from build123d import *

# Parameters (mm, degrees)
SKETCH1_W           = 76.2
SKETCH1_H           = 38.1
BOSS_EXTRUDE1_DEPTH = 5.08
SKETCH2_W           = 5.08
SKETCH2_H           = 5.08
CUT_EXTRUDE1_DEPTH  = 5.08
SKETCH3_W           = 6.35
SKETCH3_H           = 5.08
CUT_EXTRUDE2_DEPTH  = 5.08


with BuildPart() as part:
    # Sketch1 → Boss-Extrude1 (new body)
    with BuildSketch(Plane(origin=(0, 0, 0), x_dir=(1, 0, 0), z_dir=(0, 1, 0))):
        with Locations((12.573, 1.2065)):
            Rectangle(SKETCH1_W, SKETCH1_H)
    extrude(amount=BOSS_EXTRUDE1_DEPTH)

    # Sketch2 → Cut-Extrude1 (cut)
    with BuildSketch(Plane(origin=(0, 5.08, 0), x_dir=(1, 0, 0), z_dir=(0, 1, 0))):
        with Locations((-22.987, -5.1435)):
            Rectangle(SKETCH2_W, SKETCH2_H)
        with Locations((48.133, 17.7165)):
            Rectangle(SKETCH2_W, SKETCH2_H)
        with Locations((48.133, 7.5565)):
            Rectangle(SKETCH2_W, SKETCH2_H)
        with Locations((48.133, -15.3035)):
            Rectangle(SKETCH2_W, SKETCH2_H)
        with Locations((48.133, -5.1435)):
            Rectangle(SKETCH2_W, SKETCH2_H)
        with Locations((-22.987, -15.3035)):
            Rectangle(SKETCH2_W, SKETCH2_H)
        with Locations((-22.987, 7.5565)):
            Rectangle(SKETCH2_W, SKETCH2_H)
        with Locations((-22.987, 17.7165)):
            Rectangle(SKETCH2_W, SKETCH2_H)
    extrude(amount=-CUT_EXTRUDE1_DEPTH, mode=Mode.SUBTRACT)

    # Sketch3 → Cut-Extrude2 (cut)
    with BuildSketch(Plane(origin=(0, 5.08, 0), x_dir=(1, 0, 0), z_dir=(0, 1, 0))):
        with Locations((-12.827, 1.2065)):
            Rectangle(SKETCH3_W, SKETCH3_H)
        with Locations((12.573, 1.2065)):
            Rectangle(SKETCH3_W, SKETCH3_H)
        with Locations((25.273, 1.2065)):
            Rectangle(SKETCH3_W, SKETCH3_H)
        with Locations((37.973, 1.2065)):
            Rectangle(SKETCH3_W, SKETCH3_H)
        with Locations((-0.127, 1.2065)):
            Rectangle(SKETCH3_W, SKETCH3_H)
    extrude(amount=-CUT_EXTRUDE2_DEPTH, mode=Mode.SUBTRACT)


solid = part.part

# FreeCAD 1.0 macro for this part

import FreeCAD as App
import Part
import Sketcher
Q = App.Units.Quantity

doc = App.newDocument("Part")
body = doc.addObject("PartDesign::Body", "Body")

# Sketch on XZ plane
sketch1 = body.newObject("Sketcher::SketchObject", "Sketch")
sketch1.AttachmentSupport = (doc.getObject("XZ_Plane"), [""])
sketch1.MapMode = "FlatFace"
sketch1.addGeometry([
    Part.LineSegment(App.Vector(-25.527, -20.2565, 0), App.Vector(-25.527, 17.8435, 0)),
    Part.LineSegment(App.Vector(-25.527, 17.8435, 0), App.Vector(50.673, 17.8435, 0)),
    Part.LineSegment(App.Vector(50.673, 17.8435, 0), App.Vector(50.673, -20.2565, 0)),
    Part.LineSegment(App.Vector(50.673, -20.2565, 0), App.Vector(-25.527, -20.2565, 0)),
], False)
sketch1.addConstraint([
    Sketcher.Constraint("Coincident", 0, 2, 1, 1),
    Sketcher.Constraint("Coincident", 1, 2, 2, 1),
    Sketcher.Constraint("Coincident", 2, 2, 3, 1),
    Sketcher.Constraint("Coincident", 3, 2, 0, 1),
    Sketcher.Constraint("Vertical", 0),
    Sketcher.Constraint("Horizontal", 1),
    Sketcher.Constraint("Vertical", 2),
    Sketcher.Constraint("Horizontal", 3),
    Sketcher.Constraint("DistanceX", 1, 1, 1, 2, Q("3 in")),
    Sketcher.Constraint("DistanceY", 0, 1, 0, 2, Q("1.5 in")),
    Sketcher.Constraint("DistanceX", 0, 2, -1, 1, Q("1.005 in")),
    Sketcher.Constraint("DistanceY", -1, 1, 0, 2, Q("0.7025 in")),
])
pad1 = body.newObject("PartDesign::Pad", "Pad")
pad1.Profile = sketch1
pad1.Length = Q("0.2 in")
pad1.Reversed = True

# Sketch on XZ plane
sketch2 = body.newObject("Sketcher::SketchObject", "Sketch001")
sketch2.AttachmentSupport = (doc.getObject("XZ_Plane"), [""])
sketch2.MapMode = "FlatFace"
sketch2.AttachmentOffset = App.Placement(App.Vector(0, 0, -0.2 * 25.4), App.Rotation())
sketch2.addGeometry([
    Part.LineSegment(App.Vector(-25.527, 2.6035, 0), App.Vector(-25.527, 7.6835, 0)),  # 0
    Part.LineSegment(App.Vector(-25.527, 7.6835, 0), App.Vector(-20.447, 7.6835, 0)),  # 1
    Part.LineSegment(App.Vector(-20.447, 7.6835, 0), App.Vector(-20.447, 2.6035, 0)),  # 2
    Part.LineSegment(App.Vector(-20.447, 2.6035, 0), App.Vector(-25.527, 2.6035, 0)),  # 3
    Part.LineSegment(App.Vector(45.593, -20.2565, 0), App.Vector(45.593, -15.1765, 0)),  # 4
    Part.LineSegment(App.Vector(45.593, -15.1765, 0), App.Vector(50.673, -15.1765, 0)),  # 5
    Part.LineSegment(App.Vector(50.673, -15.1765, 0), App.Vector(50.673, -20.2565, 0)),  # 6
    Part.LineSegment(App.Vector(50.673, -20.2565, 0), App.Vector(45.593, -20.2565, 0)),  # 7
    Part.LineSegment(App.Vector(45.593, -10.0965, 0), App.Vector(45.593, -5.0165, 0)),  # 8
    Part.LineSegment(App.Vector(45.593, -5.0165, 0), App.Vector(50.673, -5.0165, 0)),  # 9
    Part.LineSegment(App.Vector(50.673, -5.0165, 0), App.Vector(50.673, -10.0965, 0)),  # 10
    Part.LineSegment(App.Vector(50.673, -10.0965, 0), App.Vector(45.593, -10.0965, 0)),  # 11
    Part.LineSegment(App.Vector(45.593, 12.7635, 0), App.Vector(45.593, 17.8435, 0)),  # 12
    Part.LineSegment(App.Vector(45.593, 17.8435, 0), App.Vector(50.673, 17.8435, 0)),  # 13
    Part.LineSegment(App.Vector(50.673, 17.8435, 0), App.Vector(50.673, 12.7635, 0)),  # 14
    Part.LineSegment(App.Vector(50.673, 12.7635, 0), App.Vector(45.593, 12.7635, 0)),  # 15
    Part.LineSegment(App.Vector(45.593, 2.6035, 0), App.Vector(45.593, 7.6835, 0)),  # 16
    Part.LineSegment(App.Vector(45.593, 7.6835, 0), App.Vector(50.673, 7.6835, 0)),  # 17
    Part.LineSegment(App.Vector(50.673, 7.6835, 0), App.Vector(50.673, 2.6035, 0)),  # 18
    Part.LineSegment(App.Vector(50.673, 2.6035, 0), App.Vector(45.593, 2.6035, 0)),  # 19
    Part.LineSegment(App.Vector(-25.527, 12.7635, 0), App.Vector(-25.527, 17.8435, 0)),  # 20
    Part.LineSegment(App.Vector(-25.527, 17.8435, 0), App.Vector(-20.447, 17.8435, 0)),  # 21
    Part.LineSegment(App.Vector(-20.447, 17.8435, 0), App.Vector(-20.447, 12.7635, 0)),  # 22
    Part.LineSegment(App.Vector(-20.447, 12.7635, 0), App.Vector(-25.527, 12.7635, 0)),  # 23
    Part.LineSegment(App.Vector(-25.527, -10.0965, 0), App.Vector(-25.527, -5.0165, 0)),  # 24
    Part.LineSegment(App.Vector(-25.527, -5.0165, 0), App.Vector(-20.447, -5.0165, 0)),  # 25
    Part.LineSegment(App.Vector(-20.447, -5.0165, 0), App.Vector(-20.447, -10.0965, 0)),  # 26
    Part.LineSegment(App.Vector(-20.447, -10.0965, 0), App.Vector(-25.527, -10.0965, 0)),  # 27
    Part.LineSegment(App.Vector(-25.527, -20.2565, 0), App.Vector(-25.527, -15.1765, 0)),  # 28
    Part.LineSegment(App.Vector(-25.527, -15.1765, 0), App.Vector(-20.447, -15.1765, 0)),  # 29
    Part.LineSegment(App.Vector(-20.447, -15.1765, 0), App.Vector(-20.447, -20.2565, 0)),  # 30
    Part.LineSegment(App.Vector(-20.447, -20.2565, 0), App.Vector(-25.527, -20.2565, 0)),  # 31
], False)
sketch2.addConstraint([
    Sketcher.Constraint("Coincident", 0, 2, 1, 1),
    Sketcher.Constraint("Coincident", 1, 2, 2, 1),
    Sketcher.Constraint("Coincident", 2, 2, 3, 1),
    Sketcher.Constraint("Coincident", 3, 2, 0, 1),
    Sketcher.Constraint("Coincident", 4, 2, 5, 1),
    Sketcher.Constraint("Coincident", 5, 2, 6, 1),
    Sketcher.Constraint("Coincident", 6, 2, 7, 1),
    Sketcher.Constraint("Coincident", 7, 2, 4, 1),
    Sketcher.Constraint("Coincident", 8, 2, 9, 1),
    Sketcher.Constraint("Coincident", 9, 2, 10, 1),
    Sketcher.Constraint("Coincident", 10, 2, 11, 1),
    Sketcher.Constraint("Coincident", 11, 2, 8, 1),
    Sketcher.Constraint("Coincident", 12, 2, 13, 1),
    Sketcher.Constraint("Coincident", 13, 2, 14, 1),
    Sketcher.Constraint("Coincident", 14, 2, 15, 1),
    Sketcher.Constraint("Coincident", 15, 2, 12, 1),
    Sketcher.Constraint("Coincident", 16, 2, 17, 1),
    Sketcher.Constraint("Coincident", 17, 2, 18, 1),
    Sketcher.Constraint("Coincident", 18, 2, 19, 1),
    Sketcher.Constraint("Coincident", 19, 2, 16, 1),
    Sketcher.Constraint("Coincident", 20, 2, 21, 1),
    Sketcher.Constraint("Coincident", 21, 2, 22, 1),
    Sketcher.Constraint("Coincident", 22, 2, 23, 1),
    Sketcher.Constraint("Coincident", 23, 2, 20, 1),
    Sketcher.Constraint("Coincident", 24, 2, 25, 1),
    Sketcher.Constraint("Coincident", 25, 2, 26, 1),
    Sketcher.Constraint("Coincident", 26, 2, 27, 1),
    Sketcher.Constraint("Coincident", 27, 2, 24, 1),
    Sketcher.Constraint("Coincident", 28, 2, 29, 1),
    Sketcher.Constraint("Coincident", 29, 2, 30, 1),
    Sketcher.Constraint("Coincident", 30, 2, 31, 1),
    Sketcher.Constraint("Coincident", 31, 2, 28, 1),
    Sketcher.Constraint("Vertical", 0),
    Sketcher.Constraint("Horizontal", 1),
    Sketcher.Constraint("Vertical", 2),
    Sketcher.Constraint("Horizontal", 3),
    Sketcher.Constraint("Vertical", 4),
    Sketcher.Constraint("Horizontal", 5),
    Sketcher.Constraint("Vertical", 6),
    Sketcher.Constraint("Horizontal", 7),
    Sketcher.Constraint("Vertical", 8),
    Sketcher.Constraint("Horizontal", 9),
    Sketcher.Constraint("Vertical", 10),
    Sketcher.Constraint("Horizontal", 11),
    Sketcher.Constraint("Vertical", 12),
    Sketcher.Constraint("Horizontal", 13),
    Sketcher.Constraint("Vertical", 14),
    Sketcher.Constraint("Horizontal", 15),
    Sketcher.Constraint("Vertical", 16),
    Sketcher.Constraint("Horizontal", 17),
    Sketcher.Constraint("Vertical", 18),
    Sketcher.Constraint("Horizontal", 19),
    Sketcher.Constraint("Vertical", 20),
    Sketcher.Constraint("Horizontal", 21),
    Sketcher.Constraint("Vertical", 22),
    Sketcher.Constraint("Horizontal", 23),
    Sketcher.Constraint("Vertical", 24),
    Sketcher.Constraint("Horizontal", 25),
    Sketcher.Constraint("Vertical", 26),
    Sketcher.Constraint("Horizontal", 27),
    Sketcher.Constraint("Vertical", 28),
    Sketcher.Constraint("Horizontal", 29),
    Sketcher.Constraint("Vertical", 30),
    Sketcher.Constraint("Horizontal", 31),
    Sketcher.Constraint("Horizontal", 1, 2, 16, 2),
    Sketcher.Constraint("Horizontal", 3, 2, 18, 2),
    Sketcher.Constraint("Horizontal", 13, 2, 20, 2),
    Sketcher.Constraint("Horizontal", 15, 2, 22, 2),
    Sketcher.Constraint("Horizontal", 9, 2, 24, 2),
    Sketcher.Constraint("Horizontal", 11, 2, 26, 2),
    Sketcher.Constraint("Horizontal", 5, 2, 28, 2),
    Sketcher.Constraint("Horizontal", 7, 2, 30, 2),
    Sketcher.Constraint("Vertical", 7, 2, 8, 2),
    Sketcher.Constraint("Vertical", 6, 2, 9, 2),
    Sketcher.Constraint("Vertical", 11, 2, 12, 2),
    Sketcher.Constraint("Vertical", 10, 2, 13, 2),
    Sketcher.Constraint("Vertical", 15, 2, 16, 2),
    Sketcher.Constraint("Vertical", 14, 2, 17, 2),
    Sketcher.Constraint("Vertical", 3, 2, 20, 2),
    Sketcher.Constraint("Vertical", 2, 2, 21, 2),
    Sketcher.Constraint("Vertical", 23, 2, 24, 2),
    Sketcher.Constraint("Vertical", 22, 2, 25, 2),
    Sketcher.Constraint("Vertical", 27, 2, 28, 2),
    Sketcher.Constraint("Vertical", 26, 2, 29, 2),
    Sketcher.Constraint("Equal", 3, 5),
    Sketcher.Constraint("Equal", 31, 0),
    Sketcher.Constraint("Equal", 2, 4),
    Sketcher.Constraint("Equal", 6, 8),
    Sketcher.Constraint("Equal", 10, 12),
    Sketcher.Constraint("DistanceX", 1, 1, 1, 2, Q("0.2 in")),
    Sketcher.Constraint("DistanceX", 3, 2, 5, 2, Q("3 in")),
    Sketcher.Constraint("DistanceY", 4, 2, 2, 2, Q("0.7 in")),
    Sketcher.Constraint("DistanceY", 4, 2, 8, 2, Q("0.4 in")),
    Sketcher.Constraint("DistanceY", 8, 2, 12, 2, Q("0.9 in")),
    Sketcher.Constraint("DistanceX", 0, 2, -1, 1, Q("1.005 in")),
    Sketcher.Constraint("DistanceY", -1, 1, 0, 2, Q("0.3025 in")),
])
pocket1 = body.newObject("PartDesign::Pocket", "Pocket")
pocket1.Profile = sketch2
pocket1.Length = Q("0.2 in")
pocket1.Reversed = True

# Sketch on XZ plane
sketch3 = body.newObject("Sketcher::SketchObject", "Sketch002")
sketch3.AttachmentSupport = (doc.getObject("XZ_Plane"), [""])
sketch3.MapMode = "FlatFace"
sketch3.AttachmentOffset = App.Placement(App.Vector(0, 0, -0.2 * 25.4), App.Rotation())
sketch3.addGeometry([
    Part.LineSegment(App.Vector(-16.002, -3.7465, 0), App.Vector(-16.002, 1.3335, 0)),  # 0
    Part.LineSegment(App.Vector(-16.002, 1.3335, 0), App.Vector(-9.652, 1.3335, 0)),  # 1
    Part.LineSegment(App.Vector(-9.652, 1.3335, 0), App.Vector(-9.652, -3.7465, 0)),  # 2
    Part.LineSegment(App.Vector(-9.652, -3.7465, 0), App.Vector(-16.002, -3.7465, 0)),  # 3
    Part.LineSegment(App.Vector(9.398, -3.7465, 0), App.Vector(9.398, 1.3335, 0)),  # 4
    Part.LineSegment(App.Vector(9.398, 1.3335, 0), App.Vector(15.748, 1.3335, 0)),  # 5
    Part.LineSegment(App.Vector(15.748, 1.3335, 0), App.Vector(15.748, -3.7465, 0)),  # 6
    Part.LineSegment(App.Vector(15.748, -3.7465, 0), App.Vector(9.398, -3.7465, 0)),  # 7
    Part.LineSegment(App.Vector(22.098, -3.7465, 0), App.Vector(22.098, 1.3335, 0)),  # 8
    Part.LineSegment(App.Vector(22.098, 1.3335, 0), App.Vector(28.448, 1.3335, 0)),  # 9
    Part.LineSegment(App.Vector(28.448, 1.3335, 0), App.Vector(28.448, -3.7465, 0)),  # 10
    Part.LineSegment(App.Vector(28.448, -3.7465, 0), App.Vector(22.098, -3.7465, 0)),  # 11
    Part.LineSegment(App.Vector(34.798, -3.7465, 0), App.Vector(34.798, 1.3335, 0)),  # 12
    Part.LineSegment(App.Vector(34.798, 1.3335, 0), App.Vector(41.148, 1.3335, 0)),  # 13
    Part.LineSegment(App.Vector(41.148, 1.3335, 0), App.Vector(41.148, -3.7465, 0)),  # 14
    Part.LineSegment(App.Vector(41.148, -3.7465, 0), App.Vector(34.798, -3.7465, 0)),  # 15
    Part.LineSegment(App.Vector(-3.302, -3.7465, 0), App.Vector(-3.302, 1.3335, 0)),  # 16
    Part.LineSegment(App.Vector(-3.302, 1.3335, 0), App.Vector(3.048, 1.3335, 0)),  # 17
    Part.LineSegment(App.Vector(3.048, 1.3335, 0), App.Vector(3.048, -3.7465, 0)),  # 18
    Part.LineSegment(App.Vector(3.048, -3.7465, 0), App.Vector(-3.302, -3.7465, 0)),  # 19
], False)
sketch3.addConstraint([
    Sketcher.Constraint("Coincident", 0, 2, 1, 1),
    Sketcher.Constraint("Coincident", 1, 2, 2, 1),
    Sketcher.Constraint("Coincident", 2, 2, 3, 1),
    Sketcher.Constraint("Coincident", 3, 2, 0, 1),
    Sketcher.Constraint("Coincident", 4, 2, 5, 1),
    Sketcher.Constraint("Coincident", 5, 2, 6, 1),
    Sketcher.Constraint("Coincident", 6, 2, 7, 1),
    Sketcher.Constraint("Coincident", 7, 2, 4, 1),
    Sketcher.Constraint("Coincident", 8, 2, 9, 1),
    Sketcher.Constraint("Coincident", 9, 2, 10, 1),
    Sketcher.Constraint("Coincident", 10, 2, 11, 1),
    Sketcher.Constraint("Coincident", 11, 2, 8, 1),
    Sketcher.Constraint("Coincident", 12, 2, 13, 1),
    Sketcher.Constraint("Coincident", 13, 2, 14, 1),
    Sketcher.Constraint("Coincident", 14, 2, 15, 1),
    Sketcher.Constraint("Coincident", 15, 2, 12, 1),
    Sketcher.Constraint("Coincident", 16, 2, 17, 1),
    Sketcher.Constraint("Coincident", 17, 2, 18, 1),
    Sketcher.Constraint("Coincident", 18, 2, 19, 1),
    Sketcher.Constraint("Coincident", 19, 2, 16, 1),
    Sketcher.Constraint("Vertical", 0),
    Sketcher.Constraint("Horizontal", 1),
    Sketcher.Constraint("Vertical", 2),
    Sketcher.Constraint("Horizontal", 3),
    Sketcher.Constraint("Vertical", 4),
    Sketcher.Constraint("Horizontal", 5),
    Sketcher.Constraint("Vertical", 6),
    Sketcher.Constraint("Horizontal", 7),
    Sketcher.Constraint("Vertical", 8),
    Sketcher.Constraint("Horizontal", 9),
    Sketcher.Constraint("Vertical", 10),
    Sketcher.Constraint("Horizontal", 11),
    Sketcher.Constraint("Vertical", 12),
    Sketcher.Constraint("Horizontal", 13),
    Sketcher.Constraint("Vertical", 14),
    Sketcher.Constraint("Horizontal", 15),
    Sketcher.Constraint("Vertical", 16),
    Sketcher.Constraint("Horizontal", 17),
    Sketcher.Constraint("Vertical", 18),
    Sketcher.Constraint("Horizontal", 19),
    Sketcher.Constraint("Horizontal", 1, 2, 4, 2),
    Sketcher.Constraint("Horizontal", 3, 2, 6, 2),
    Sketcher.Constraint("Horizontal", 5, 2, 8, 2),
    Sketcher.Constraint("Horizontal", 7, 2, 10, 2),
    Sketcher.Constraint("Horizontal", 9, 2, 12, 2),
    Sketcher.Constraint("Horizontal", 11, 2, 14, 2),
    Sketcher.Constraint("Horizontal", 13, 2, 16, 2),
    Sketcher.Constraint("Horizontal", 15, 2, 18, 2),
    Sketcher.Constraint("Equal", 3, 5),
    Sketcher.Constraint("Equal", 7, 9),
    Sketcher.Constraint("Equal", 11, 13),
    Sketcher.Constraint("Equal", 15, 17),
    Sketcher.Constraint("DistanceY", 0, 1, 0, 2, Q("0.2 in")),
    Sketcher.Constraint("DistanceX", 0, 2, 4, 2, Q("1 in")),
    Sketcher.Constraint("DistanceX", 1, 1, 1, 2, Q("0.25 in")),
    Sketcher.Constraint("DistanceX", 4, 2, 8, 2, Q("0.5 in")),
    Sketcher.Constraint("DistanceX", 8, 2, 12, 2, Q("0.5 in")),
    Sketcher.Constraint("DistanceX", 0, 2, 16, 2, Q("0.5 in")),
    Sketcher.Constraint("DistanceX", 0, 2, -1, 1, Q("0.63 in")),
    Sketcher.Constraint("DistanceY", -1, 1, 0, 2, Q("0.0525 in")),
])
pocket2 = body.newObject("PartDesign::Pocket", "Pocket001")
pocket2.Profile = sketch3
pocket2.Length = Q("0.2 in")
pocket2.Reversed = True

doc.recompute()
